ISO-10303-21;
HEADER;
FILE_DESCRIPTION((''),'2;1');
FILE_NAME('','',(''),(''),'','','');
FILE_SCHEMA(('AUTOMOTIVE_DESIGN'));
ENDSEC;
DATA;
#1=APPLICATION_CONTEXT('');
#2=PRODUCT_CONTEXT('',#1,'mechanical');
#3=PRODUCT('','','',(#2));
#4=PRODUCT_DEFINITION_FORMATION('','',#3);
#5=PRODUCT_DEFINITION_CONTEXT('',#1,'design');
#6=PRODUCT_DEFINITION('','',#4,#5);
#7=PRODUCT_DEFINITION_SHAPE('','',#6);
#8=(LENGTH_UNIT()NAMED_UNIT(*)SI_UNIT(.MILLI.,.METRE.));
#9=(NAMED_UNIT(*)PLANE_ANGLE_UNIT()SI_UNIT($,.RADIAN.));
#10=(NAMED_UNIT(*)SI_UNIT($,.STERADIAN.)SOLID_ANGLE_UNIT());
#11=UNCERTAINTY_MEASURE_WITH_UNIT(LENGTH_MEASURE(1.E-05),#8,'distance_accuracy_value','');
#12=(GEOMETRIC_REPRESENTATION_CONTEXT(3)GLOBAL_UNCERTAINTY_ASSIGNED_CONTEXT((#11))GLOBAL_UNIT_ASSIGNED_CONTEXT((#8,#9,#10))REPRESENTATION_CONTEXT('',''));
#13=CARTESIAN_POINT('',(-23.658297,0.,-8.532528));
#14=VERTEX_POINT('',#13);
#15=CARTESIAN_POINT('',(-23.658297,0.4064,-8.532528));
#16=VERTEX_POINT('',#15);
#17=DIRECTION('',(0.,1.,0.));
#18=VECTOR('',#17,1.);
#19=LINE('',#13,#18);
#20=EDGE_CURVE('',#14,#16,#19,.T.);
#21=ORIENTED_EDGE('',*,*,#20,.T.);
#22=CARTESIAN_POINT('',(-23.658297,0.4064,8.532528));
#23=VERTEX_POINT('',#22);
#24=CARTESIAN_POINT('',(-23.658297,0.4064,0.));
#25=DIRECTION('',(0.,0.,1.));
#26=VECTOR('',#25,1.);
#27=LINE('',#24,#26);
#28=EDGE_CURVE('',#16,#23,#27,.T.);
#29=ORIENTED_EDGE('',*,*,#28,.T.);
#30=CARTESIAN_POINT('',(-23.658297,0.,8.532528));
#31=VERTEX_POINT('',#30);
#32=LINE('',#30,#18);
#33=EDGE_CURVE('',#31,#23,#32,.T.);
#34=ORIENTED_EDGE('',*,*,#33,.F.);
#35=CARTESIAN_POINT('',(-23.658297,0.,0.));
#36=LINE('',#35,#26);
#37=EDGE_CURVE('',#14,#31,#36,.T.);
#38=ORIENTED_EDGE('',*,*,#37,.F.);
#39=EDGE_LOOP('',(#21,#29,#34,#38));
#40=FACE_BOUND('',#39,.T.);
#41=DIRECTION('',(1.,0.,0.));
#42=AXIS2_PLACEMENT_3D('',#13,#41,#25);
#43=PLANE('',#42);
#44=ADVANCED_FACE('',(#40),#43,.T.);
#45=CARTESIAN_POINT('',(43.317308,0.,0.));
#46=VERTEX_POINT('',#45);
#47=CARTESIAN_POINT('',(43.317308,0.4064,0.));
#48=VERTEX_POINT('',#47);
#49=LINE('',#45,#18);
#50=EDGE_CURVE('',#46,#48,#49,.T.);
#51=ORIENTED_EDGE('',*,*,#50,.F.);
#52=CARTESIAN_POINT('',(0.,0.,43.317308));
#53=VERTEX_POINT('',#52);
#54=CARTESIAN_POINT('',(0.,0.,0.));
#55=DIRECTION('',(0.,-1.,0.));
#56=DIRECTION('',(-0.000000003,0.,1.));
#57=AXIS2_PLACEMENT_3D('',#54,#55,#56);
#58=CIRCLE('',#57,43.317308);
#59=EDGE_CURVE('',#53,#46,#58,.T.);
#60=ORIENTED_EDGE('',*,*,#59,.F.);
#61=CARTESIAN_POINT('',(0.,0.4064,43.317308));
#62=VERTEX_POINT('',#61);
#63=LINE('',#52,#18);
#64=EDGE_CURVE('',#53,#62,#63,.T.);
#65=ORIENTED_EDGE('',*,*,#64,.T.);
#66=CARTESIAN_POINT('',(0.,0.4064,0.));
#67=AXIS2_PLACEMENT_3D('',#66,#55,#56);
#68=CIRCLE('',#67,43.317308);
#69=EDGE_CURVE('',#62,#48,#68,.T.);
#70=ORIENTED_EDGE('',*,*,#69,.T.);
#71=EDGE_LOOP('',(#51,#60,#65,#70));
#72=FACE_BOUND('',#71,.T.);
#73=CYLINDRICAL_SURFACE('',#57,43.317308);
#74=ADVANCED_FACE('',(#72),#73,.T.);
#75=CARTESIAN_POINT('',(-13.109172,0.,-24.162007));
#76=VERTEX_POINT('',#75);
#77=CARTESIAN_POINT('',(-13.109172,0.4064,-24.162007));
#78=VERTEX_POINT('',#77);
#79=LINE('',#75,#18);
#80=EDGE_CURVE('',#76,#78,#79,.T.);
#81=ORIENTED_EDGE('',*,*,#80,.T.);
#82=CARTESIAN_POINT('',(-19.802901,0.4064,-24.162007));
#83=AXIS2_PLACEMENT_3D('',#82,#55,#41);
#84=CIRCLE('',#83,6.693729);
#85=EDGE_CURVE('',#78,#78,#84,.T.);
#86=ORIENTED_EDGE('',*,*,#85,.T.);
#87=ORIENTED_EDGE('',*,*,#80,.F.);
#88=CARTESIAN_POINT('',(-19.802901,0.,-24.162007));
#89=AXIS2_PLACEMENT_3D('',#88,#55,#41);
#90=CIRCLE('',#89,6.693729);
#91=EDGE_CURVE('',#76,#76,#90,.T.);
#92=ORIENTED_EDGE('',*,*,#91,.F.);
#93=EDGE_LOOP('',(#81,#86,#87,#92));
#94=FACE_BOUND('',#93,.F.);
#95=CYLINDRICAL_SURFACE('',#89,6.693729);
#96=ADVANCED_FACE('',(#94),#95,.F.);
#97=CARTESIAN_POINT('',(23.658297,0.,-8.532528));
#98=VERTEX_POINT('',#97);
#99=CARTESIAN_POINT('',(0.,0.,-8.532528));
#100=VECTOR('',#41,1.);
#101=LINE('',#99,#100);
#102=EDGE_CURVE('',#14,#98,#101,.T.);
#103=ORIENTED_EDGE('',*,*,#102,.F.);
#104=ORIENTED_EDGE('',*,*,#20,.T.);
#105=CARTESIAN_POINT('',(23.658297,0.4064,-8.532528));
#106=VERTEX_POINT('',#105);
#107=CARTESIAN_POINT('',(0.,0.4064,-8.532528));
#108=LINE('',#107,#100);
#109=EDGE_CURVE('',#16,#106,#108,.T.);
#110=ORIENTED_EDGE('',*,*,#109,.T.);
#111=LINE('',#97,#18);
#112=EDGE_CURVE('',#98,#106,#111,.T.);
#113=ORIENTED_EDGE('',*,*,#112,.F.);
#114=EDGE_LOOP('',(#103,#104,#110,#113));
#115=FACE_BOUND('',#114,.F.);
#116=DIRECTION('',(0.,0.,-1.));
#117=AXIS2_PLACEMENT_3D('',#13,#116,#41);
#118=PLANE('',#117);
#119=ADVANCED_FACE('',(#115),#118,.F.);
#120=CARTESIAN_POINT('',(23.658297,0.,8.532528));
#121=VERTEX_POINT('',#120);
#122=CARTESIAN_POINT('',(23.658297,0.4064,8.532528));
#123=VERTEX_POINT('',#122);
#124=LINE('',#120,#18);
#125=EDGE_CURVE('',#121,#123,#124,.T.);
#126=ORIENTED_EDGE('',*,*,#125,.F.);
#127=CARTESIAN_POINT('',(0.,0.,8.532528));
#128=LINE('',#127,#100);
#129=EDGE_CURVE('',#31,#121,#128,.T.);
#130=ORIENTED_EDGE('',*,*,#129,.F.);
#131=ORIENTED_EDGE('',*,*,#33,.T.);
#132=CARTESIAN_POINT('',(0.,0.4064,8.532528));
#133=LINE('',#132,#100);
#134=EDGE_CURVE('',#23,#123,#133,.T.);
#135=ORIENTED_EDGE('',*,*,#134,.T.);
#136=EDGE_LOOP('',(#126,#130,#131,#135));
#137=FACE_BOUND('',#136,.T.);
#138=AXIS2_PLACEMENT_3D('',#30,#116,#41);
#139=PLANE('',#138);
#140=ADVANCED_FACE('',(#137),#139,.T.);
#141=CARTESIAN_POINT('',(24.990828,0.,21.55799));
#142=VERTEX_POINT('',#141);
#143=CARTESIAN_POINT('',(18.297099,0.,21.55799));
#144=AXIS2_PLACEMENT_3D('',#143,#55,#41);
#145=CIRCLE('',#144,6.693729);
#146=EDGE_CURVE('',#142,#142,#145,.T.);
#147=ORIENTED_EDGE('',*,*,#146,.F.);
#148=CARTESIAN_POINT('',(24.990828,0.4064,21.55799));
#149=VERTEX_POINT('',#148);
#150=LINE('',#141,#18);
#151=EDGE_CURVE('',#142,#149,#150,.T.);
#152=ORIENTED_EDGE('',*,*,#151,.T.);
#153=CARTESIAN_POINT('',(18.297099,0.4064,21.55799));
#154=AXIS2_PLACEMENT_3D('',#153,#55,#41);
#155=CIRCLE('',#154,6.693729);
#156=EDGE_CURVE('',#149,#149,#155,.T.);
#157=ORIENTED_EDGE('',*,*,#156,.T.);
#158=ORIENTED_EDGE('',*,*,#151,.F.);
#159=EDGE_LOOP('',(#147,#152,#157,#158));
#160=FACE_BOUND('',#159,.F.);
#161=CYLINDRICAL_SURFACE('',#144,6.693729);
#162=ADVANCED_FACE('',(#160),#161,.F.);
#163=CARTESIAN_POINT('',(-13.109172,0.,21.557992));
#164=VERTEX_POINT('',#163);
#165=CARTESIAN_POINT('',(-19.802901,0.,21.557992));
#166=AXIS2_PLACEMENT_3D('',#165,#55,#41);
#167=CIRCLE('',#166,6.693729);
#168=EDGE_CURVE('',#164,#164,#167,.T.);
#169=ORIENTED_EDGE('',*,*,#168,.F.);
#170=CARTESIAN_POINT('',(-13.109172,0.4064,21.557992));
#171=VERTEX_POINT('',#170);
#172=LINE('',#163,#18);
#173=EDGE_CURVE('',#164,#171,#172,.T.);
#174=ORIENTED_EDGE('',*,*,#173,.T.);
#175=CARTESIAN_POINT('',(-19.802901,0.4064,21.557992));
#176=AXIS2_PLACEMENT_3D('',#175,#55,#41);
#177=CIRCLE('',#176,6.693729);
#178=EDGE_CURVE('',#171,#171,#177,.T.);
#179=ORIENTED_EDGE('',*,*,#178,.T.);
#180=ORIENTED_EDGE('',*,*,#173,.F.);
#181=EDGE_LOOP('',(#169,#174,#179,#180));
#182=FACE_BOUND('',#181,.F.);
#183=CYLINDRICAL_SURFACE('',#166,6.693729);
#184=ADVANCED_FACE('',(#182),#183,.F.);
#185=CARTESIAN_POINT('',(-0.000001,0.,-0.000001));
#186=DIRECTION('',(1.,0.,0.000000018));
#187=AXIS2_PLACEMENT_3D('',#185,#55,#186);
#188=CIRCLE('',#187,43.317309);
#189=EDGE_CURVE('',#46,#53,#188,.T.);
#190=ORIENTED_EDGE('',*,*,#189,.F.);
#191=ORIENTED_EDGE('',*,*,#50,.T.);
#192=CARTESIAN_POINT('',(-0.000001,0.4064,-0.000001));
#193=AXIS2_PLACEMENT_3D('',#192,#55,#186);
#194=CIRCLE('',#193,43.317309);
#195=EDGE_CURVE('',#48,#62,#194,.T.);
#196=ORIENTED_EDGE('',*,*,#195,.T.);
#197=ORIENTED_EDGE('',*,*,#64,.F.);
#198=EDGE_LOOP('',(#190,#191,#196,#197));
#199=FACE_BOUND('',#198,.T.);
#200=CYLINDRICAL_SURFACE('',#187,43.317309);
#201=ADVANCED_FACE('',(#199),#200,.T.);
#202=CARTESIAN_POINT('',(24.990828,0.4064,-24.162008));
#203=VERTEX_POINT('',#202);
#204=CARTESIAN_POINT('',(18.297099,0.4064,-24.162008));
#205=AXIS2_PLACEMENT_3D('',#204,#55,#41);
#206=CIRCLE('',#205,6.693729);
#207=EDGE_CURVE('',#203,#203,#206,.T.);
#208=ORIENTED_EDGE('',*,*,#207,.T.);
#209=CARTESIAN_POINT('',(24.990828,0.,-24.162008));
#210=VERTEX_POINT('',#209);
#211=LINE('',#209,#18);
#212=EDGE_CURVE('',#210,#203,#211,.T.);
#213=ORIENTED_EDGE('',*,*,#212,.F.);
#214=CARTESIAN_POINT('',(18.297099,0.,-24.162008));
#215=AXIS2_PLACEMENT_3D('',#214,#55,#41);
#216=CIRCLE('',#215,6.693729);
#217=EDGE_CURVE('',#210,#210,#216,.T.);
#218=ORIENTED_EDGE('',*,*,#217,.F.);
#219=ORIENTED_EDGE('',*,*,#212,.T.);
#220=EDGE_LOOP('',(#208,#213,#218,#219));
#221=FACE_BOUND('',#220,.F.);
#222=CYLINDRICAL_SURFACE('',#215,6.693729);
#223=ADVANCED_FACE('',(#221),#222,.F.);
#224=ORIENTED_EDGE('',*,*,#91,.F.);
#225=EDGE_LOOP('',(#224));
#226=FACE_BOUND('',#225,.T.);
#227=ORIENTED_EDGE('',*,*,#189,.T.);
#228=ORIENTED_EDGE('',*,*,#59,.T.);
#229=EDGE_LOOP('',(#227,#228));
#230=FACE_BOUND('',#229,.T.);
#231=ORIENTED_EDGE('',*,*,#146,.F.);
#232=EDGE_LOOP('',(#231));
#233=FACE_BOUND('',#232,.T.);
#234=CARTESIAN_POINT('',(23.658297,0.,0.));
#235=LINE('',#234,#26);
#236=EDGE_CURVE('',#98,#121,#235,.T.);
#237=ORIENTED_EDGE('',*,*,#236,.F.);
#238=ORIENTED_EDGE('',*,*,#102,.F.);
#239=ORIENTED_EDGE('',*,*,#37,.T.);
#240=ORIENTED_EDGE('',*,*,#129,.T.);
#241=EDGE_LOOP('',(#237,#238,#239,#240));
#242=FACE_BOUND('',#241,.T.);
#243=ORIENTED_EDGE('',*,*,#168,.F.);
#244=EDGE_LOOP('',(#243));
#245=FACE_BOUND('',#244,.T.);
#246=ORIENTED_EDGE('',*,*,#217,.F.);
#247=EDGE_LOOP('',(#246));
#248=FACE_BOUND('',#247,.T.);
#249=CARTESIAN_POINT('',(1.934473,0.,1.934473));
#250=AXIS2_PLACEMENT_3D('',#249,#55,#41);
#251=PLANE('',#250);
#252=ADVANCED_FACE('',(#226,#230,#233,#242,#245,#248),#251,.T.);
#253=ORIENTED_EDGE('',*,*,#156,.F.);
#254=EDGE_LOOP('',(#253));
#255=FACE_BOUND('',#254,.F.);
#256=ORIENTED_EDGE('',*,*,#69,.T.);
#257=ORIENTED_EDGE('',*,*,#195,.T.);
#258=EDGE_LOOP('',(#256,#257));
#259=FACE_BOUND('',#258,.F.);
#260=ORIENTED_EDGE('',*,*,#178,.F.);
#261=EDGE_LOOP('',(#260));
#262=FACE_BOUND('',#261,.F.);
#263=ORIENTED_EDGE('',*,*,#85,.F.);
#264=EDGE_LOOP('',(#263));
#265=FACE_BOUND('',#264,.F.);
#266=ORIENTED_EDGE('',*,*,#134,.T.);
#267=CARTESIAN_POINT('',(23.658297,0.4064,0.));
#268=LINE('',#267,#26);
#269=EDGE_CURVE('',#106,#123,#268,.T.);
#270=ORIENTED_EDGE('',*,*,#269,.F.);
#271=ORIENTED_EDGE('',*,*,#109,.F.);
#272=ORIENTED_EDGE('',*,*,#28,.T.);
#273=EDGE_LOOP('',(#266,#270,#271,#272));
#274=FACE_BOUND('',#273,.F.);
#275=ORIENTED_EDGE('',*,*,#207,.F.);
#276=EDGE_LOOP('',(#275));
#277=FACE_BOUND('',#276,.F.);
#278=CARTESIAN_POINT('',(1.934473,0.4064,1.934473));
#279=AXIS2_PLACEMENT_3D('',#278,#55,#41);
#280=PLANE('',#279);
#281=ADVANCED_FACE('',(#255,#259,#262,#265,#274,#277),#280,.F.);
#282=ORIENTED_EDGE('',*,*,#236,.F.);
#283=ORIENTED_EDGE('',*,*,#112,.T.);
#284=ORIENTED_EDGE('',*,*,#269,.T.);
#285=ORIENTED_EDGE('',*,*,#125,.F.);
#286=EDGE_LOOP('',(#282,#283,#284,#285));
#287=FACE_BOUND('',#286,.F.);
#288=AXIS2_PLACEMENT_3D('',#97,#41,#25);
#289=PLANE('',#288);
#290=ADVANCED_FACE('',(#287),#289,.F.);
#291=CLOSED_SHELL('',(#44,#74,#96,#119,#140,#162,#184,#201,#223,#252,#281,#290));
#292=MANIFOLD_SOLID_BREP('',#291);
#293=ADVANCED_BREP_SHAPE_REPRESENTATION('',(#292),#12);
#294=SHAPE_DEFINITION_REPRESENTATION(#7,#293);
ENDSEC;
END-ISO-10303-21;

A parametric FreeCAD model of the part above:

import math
import FreeCAD as App
import Part
import Sketcher
Q = App.Units.Quantity


def add_polygon(sketch, points):
    """Adds a closed chain of lines whose ends are joined by coincident constraints."""
    first, n = sketch.GeometryCount, len(points)
    for a, b in zip(points, points[1:] + points[:1]):
        sketch.addGeometry(Part.LineSegment(App.Vector(*a, 0), App.Vector(*b, 0)), False)
    for i in range(n):
        sketch.addConstraint(Sketcher.Constraint("Coincident", first + i, 2, first + (i + 1) % n, 1))

doc = App.newDocument("Part")
body = doc.addObject("PartDesign::Body", "Body")

# Sketch on XZ plane
sketch1 = body.newObject("Sketcher::SketchObject", "Sketch")
sketch1.AttachmentSupport = (doc.getObject("XZ_Plane"), [""])
sketch1.MapMode = "FlatFace"
sketch1.addGeometry(Part.ArcOfCircle(Part.Circle(App.Vector(0, 0, 0), App.Vector(0, 0, 1), 43), math.radians(90), math.radians(360)), False)  # 0
sketch1.addGeometry(Part.ArcOfCircle(Part.Circle(App.Vector(0, 0, 0), App.Vector(0, 0, 1), 43), math.radians(0), math.radians(90)), False)  # 1
sketch1.addGeometry(Part.Circle(App.Vector(-20, -24, 0), App.Vector(0, 0, 1), 7), False)  # 2
sketch1.addGeometry(Part.Circle(App.Vector(18, -24, 0), App.Vector(0, 0, 1), 7), False)  # 3
sketch1.addGeometry(Part.Circle(App.Vector(-20, 22, 0), App.Vector(0, 0, 1), 7), False)  # 4
add_polygon(sketch1, [(24, -9), (-24, -9), (-24, 9), (24, 9)])  # lines 5-8
sketch1.addGeometry(Part.Circle(App.Vector(18, 22, 0), App.Vector(0, 0, 1), 7), False)  # 9
sketch1.addConstraint([
    Sketcher.Constraint("Tangent", 0, 1, 1, 2),
    Sketcher.Constraint("Coincident", 1, 1, 0, 2),
    Sketcher.Constraint("Horizontal", 5),
    Sketcher.Constraint("Vertical", 6),
    Sketcher.Constraint("Horizontal", 7),
    Sketcher.Constraint("Vertical", 8),
    Sketcher.Constraint("Coincident", 0, 3, -1, 1),
    Sketcher.Constraint("Equal", 2, 3),
    Sketcher.Constraint("Equal", 3, 4),
    Sketcher.Constraint("Equal", 4, 9),
    Sketcher.Constraint("Symmetric", 5, 2, 7, 2, -1, 1),
    Sketcher.Constraint("PointOnObject", 0, 1, -2),
    Sketcher.Constraint("PointOnObject", 1, 1, -1),
    Sketcher.Constraint("Horizontal", 2, 3, 3, 3),
    Sketcher.Constraint("Horizontal", 4, 3, 9, 3),
    Sketcher.Constraint("Vertical", 2, 3, 4, 3),
    Sketcher.Constraint("Vertical", 3, 3, 9, 3),
    Sketcher.Constraint("DistanceX", 2, 3, 3, 3, Q("1.5 in")),
    Sketcher.Constraint("DistanceY", 2, 3, 4, 3, Q("1.8 in")),
    Sketcher.Constraint("Radius", 1, 43.317309),
    Sketcher.Constraint("Diameter", 2, 13.387458),
    Sketcher.Constraint("DistanceX", 2, 3, -1, 1, 19.802901),
    Sketcher.Constraint("DistanceX", 9, 3, 7, 2, 5.361198),
    Sketcher.Constraint("DistanceY", 6, 1, 6, 2, 17.065056),
    Sketcher.Constraint("DistanceY", 3, 3, -1, 1, 24.162008),
])
pad1 = body.newObject("PartDesign::Pad", "Pad")
pad1.Profile = sketch1
pad1.Length = Q("0.016 in")
pad1.Reversed = True

doc.recompute()
